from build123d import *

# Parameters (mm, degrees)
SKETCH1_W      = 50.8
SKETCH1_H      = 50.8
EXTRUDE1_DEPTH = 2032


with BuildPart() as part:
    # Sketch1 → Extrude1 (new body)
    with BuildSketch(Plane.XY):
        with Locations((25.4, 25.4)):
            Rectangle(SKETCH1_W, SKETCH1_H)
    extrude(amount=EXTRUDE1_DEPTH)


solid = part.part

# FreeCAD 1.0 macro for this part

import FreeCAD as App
import Part
import Sketcher
from FreeCAD import Vector
Q = App.Units.Quantity


def add_polygon(sketch, points):
    """Adds a closed chain of lines whose ends are joined by coincident constraints."""
    first, n = sketch.GeometryCount, len(points)
    for a, b in zip(points, points[1:] + points[:1]):
        sketch.addGeometry(Part.LineSegment(App.Vector(*a, 0), App.Vector(*b, 0)), False)
    for i in range(n):
        sketch.addConstraint(Sketcher.Constraint("Coincident", first + i, 2, first + (i + 1) % n, 1))

doc = App.newDocument("Part")
body = doc.addObject("PartDesign::Body", "Body")

sketch1 = body.newObject("Sketcher::SketchObject", "Sketch")
sketch1.AttachmentSupport = (doc.getObject("XY_Plane"), [""])
sketch1.MapMode = "FlatFace"
add_polygon(sketch1, [(0, 51), (0, 0), (51, 0), (51, 51)])
sketch1.addConstraint(Sketcher.Constraint("Vertical", 0))
sketch1.addConstraint(Sketcher.Constraint("Horizontal", 1))
sketch1.addConstraint(Sketcher.Constraint("Vertical", 2))
sketch1.addConstraint(Sketcher.Constraint("Horizontal", 3))
sketch1.addConstraint(Sketcher.Constraint("Coincident", 0, 2, -1, 1))
sketch1.addConstraint(Sketcher.Constraint("Equal", 3, 0))
sketch1.addConstraint(Sketcher.Constraint("DistanceX", 1, 1, 1, 2, Q("2 in")))
pad1 = body.newObject("PartDesign::Pad", "Pad")
pad1.Profile = sketch1
pad1.Length = Q("80 in")

doc.recompute()
